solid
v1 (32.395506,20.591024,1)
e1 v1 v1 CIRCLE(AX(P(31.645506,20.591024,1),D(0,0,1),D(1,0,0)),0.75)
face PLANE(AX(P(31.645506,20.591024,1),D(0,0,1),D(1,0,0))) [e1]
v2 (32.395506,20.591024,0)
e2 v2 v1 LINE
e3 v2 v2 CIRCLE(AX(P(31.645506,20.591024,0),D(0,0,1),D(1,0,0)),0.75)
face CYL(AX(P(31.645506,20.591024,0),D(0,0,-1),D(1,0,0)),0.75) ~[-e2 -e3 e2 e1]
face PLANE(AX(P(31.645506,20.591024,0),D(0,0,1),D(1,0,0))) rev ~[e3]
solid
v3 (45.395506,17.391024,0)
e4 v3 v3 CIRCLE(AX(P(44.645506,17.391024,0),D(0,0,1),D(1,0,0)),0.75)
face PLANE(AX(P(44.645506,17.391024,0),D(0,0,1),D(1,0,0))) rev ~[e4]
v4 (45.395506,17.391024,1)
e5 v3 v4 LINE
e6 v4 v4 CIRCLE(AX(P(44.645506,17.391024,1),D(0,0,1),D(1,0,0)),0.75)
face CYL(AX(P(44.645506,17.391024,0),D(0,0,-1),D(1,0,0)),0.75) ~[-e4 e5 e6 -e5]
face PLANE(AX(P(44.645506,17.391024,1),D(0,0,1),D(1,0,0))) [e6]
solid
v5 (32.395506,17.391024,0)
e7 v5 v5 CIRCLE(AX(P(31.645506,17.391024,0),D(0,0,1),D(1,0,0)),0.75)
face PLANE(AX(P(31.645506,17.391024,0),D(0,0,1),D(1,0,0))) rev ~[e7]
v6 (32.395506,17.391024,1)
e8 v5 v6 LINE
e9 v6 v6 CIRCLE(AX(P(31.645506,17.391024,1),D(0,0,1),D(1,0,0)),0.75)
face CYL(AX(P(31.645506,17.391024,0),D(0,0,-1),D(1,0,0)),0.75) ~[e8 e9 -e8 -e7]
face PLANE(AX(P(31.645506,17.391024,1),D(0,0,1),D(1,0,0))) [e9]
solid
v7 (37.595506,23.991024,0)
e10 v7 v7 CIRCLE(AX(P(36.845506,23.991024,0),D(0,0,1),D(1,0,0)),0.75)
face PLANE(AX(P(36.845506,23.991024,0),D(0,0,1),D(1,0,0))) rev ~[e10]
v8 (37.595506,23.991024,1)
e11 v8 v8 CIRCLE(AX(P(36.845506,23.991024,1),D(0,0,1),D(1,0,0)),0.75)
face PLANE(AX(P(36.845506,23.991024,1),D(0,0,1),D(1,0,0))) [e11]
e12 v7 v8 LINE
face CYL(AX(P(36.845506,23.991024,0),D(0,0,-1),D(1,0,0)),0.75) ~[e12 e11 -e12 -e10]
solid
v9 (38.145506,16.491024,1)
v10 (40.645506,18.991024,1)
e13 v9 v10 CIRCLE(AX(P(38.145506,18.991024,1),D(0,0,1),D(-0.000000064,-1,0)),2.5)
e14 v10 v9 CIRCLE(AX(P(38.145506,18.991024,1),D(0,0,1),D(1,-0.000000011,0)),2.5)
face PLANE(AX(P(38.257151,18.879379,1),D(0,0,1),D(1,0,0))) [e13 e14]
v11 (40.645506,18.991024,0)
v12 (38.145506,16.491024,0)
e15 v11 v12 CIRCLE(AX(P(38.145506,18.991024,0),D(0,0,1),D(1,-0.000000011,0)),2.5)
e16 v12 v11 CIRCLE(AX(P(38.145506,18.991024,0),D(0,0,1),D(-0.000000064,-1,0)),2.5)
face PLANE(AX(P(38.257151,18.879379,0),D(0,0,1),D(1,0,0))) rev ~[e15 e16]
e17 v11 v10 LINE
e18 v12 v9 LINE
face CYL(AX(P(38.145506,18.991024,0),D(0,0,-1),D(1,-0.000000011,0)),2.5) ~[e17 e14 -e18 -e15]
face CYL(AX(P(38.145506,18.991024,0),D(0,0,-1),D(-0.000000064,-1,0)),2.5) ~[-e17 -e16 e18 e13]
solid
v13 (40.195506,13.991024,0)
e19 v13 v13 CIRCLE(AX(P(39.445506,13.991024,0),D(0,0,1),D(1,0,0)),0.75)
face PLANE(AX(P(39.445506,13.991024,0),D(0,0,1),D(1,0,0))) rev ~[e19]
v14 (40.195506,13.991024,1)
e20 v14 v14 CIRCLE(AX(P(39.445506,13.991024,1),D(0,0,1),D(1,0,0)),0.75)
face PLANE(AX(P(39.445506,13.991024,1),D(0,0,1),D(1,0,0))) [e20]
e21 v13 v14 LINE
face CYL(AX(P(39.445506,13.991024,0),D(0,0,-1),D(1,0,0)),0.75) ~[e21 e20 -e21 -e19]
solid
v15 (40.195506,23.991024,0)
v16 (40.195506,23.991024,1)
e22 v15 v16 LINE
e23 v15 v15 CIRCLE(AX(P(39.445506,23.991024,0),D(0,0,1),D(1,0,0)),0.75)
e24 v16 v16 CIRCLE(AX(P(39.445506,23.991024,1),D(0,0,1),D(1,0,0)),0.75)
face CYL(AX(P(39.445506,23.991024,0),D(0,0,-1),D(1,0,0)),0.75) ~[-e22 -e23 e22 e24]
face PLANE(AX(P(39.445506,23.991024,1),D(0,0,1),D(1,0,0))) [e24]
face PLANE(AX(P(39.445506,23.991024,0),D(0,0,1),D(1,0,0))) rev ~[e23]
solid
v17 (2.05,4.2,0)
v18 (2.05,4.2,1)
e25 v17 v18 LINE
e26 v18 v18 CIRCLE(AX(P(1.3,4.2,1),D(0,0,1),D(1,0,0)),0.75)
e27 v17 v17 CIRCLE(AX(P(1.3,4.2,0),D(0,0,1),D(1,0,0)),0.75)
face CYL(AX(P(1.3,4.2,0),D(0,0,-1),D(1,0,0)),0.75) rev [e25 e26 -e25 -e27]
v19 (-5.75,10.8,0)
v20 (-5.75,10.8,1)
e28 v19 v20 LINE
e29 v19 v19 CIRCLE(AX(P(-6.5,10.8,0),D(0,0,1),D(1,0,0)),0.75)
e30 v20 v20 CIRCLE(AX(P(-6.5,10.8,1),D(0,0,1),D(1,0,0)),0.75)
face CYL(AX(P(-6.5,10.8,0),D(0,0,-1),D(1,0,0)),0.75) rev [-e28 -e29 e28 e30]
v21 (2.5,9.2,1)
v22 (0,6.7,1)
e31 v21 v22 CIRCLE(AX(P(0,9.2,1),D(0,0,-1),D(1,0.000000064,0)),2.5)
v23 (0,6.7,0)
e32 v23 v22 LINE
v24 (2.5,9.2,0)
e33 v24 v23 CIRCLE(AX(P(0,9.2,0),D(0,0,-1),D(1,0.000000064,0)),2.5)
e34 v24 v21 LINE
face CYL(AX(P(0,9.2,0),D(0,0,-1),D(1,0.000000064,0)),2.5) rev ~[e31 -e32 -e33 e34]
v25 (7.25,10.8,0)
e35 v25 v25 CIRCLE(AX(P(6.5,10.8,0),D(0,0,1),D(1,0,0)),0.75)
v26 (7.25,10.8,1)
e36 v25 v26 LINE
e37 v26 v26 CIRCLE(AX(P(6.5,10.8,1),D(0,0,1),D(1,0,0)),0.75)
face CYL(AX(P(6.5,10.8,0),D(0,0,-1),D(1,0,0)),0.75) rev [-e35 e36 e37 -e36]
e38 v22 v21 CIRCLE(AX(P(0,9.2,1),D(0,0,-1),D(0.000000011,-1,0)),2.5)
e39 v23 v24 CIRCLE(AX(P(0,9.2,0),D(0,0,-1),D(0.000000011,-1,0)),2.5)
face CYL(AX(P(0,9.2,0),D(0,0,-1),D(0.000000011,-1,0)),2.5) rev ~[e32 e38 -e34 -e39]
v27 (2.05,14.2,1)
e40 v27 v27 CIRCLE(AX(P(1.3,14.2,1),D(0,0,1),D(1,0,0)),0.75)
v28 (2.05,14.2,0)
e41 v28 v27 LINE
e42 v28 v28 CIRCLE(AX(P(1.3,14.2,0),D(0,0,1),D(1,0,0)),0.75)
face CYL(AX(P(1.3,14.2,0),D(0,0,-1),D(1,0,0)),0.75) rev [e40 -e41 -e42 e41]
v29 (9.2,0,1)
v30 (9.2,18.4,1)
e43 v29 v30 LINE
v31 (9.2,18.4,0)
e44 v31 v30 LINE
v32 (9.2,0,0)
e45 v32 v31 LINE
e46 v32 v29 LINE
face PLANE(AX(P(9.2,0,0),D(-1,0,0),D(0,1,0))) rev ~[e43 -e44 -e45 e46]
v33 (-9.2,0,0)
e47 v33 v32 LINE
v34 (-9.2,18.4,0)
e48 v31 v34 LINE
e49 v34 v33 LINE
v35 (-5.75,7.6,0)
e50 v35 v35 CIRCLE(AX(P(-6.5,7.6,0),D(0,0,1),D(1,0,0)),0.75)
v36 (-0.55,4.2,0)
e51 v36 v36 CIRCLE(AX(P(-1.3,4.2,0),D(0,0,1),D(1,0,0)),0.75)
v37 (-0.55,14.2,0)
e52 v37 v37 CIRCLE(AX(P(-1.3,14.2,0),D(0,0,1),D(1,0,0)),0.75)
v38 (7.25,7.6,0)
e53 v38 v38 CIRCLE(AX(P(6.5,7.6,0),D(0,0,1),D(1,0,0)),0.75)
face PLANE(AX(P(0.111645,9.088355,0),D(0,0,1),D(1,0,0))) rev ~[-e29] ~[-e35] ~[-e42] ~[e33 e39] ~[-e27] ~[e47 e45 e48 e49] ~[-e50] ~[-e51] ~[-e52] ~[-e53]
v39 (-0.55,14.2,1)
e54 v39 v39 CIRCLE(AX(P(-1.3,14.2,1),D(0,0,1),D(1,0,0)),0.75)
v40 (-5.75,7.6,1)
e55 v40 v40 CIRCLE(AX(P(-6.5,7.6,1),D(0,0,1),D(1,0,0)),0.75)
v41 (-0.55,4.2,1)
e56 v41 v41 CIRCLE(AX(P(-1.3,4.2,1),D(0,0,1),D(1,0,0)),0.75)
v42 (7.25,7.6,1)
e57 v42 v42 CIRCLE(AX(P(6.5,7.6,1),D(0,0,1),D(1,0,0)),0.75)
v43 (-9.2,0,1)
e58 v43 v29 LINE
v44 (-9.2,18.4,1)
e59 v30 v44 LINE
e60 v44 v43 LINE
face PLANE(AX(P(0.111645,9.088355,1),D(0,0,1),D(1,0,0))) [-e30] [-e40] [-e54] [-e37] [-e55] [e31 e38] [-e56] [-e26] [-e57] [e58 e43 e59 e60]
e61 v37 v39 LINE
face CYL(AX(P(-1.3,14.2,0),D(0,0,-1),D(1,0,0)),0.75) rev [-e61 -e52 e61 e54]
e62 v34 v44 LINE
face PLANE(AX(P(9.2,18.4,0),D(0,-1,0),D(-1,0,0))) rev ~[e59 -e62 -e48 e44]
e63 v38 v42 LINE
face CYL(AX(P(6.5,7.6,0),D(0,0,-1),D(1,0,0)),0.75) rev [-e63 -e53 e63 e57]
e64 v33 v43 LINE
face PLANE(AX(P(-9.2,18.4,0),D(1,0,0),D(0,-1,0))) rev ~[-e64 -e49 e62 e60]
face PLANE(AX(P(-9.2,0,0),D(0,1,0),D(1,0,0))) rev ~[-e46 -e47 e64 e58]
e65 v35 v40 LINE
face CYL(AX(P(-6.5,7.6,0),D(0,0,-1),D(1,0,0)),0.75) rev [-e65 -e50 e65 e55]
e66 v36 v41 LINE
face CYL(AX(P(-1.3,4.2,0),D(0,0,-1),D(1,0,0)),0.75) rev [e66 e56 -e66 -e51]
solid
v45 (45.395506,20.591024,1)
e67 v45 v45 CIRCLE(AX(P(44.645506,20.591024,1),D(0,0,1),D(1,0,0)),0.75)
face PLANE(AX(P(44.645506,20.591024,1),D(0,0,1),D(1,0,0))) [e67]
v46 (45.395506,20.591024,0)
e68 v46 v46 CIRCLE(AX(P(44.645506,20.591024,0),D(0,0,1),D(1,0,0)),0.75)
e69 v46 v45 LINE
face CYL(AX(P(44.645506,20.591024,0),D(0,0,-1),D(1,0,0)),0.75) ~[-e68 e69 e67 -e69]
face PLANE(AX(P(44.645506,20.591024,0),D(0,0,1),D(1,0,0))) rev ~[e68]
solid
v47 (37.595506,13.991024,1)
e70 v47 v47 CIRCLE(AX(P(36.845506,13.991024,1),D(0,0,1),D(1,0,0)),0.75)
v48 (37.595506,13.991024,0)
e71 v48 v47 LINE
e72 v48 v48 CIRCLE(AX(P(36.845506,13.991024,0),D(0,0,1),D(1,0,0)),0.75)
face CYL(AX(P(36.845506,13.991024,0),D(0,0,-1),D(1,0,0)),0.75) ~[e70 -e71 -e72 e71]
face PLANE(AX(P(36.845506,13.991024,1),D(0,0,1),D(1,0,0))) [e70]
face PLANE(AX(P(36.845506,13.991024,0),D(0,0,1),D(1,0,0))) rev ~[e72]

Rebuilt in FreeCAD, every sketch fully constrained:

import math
import FreeCAD as App
import Part
import Sketcher
Q = App.Units.Quantity


def add_polygon(sketch, points):
    """Adds a closed chain of lines whose ends are joined by coincident constraints."""
    first, n = sketch.GeometryCount, len(points)
    for a, b in zip(points, points[1:] + points[:1]):
        sketch.addGeometry(Part.LineSegment(App.Vector(*a, 0), App.Vector(*b, 0)), False)
    for i in range(n):
        sketch.addConstraint(Sketcher.Constraint("Coincident", first + i, 2, first + (i + 1) % n, 1))

doc = App.newDocument("Part")
params = doc.addObject("Spreadsheet::Sheet", "Params")
for row, (alias, value) in enumerate([
    ("sketch1_diameter", "1.5 mm"),
    ("sketch1_radius", "2.5 mm"),
    ("sketch1_width", "18.4 mm"),
    ("pad1_length", "1 mm"),
], start=1):
    params.set(f"A{row}", alias)
    params.set(f"B{row}", "=" + value)
    params.setAlias(f"B{row}", alias)

body = doc.addObject("PartDesign::Body", "Body")
body.AllowCompound = True

# Sketch on XY plane
sketch1 = doc.addObject("Sketcher::SketchObject", "Sketch")
body.addObject(sketch1)
sketch1.AttachmentSupport = (doc.XY_Plane, [""])
sketch1.MapMode = "FlatFace"
add_polygon(sketch1, [(-9.2, 0), (9.2, 0), (9.2, 18.4), (-9.2, 18.4)])  # lines 0-3
sketch1.addGeometry(Part.Circle(App.Vector(-1.3, 4.2, 0), App.Vector(0, 0, 1), 0.8), False)  # 4
sketch1.addGeometry(Part.Circle(App.Vector(-6.5, 7.6, 0), App.Vector(0, 0, 1), 0.8), False)  # 5
sketch1.addGeometry(Part.Circle(App.Vector(1.3, 4.2, 0), App.Vector(0, 0, 1), 0.8), False)  # 6
sketch1.addGeometry(Part.Circle(App.Vector(6.5, 7.6, 0), App.Vector(0, 0, 1), 0.8), False)  # 7
sketch1.addGeometry(Part.Circle(App.Vector(-6.5, 10.8, 0), App.Vector(0, 0, 1), 0.8), False)  # 8
sketch1.addGeometry(Part.ArcOfCircle(Part.Circle(App.Vector(0, 9.2, 0), App.Vector(0, 0, 1), 2.5), math.radians(-90), math.radians(0)), False)  # 9
sketch1.addGeometry(Part.ArcOfCircle(Part.Circle(App.Vector(0, 9.2, 0), App.Vector(0, 0, 1), 2.5), math.radians(0), math.radians(270)), False)  # 10
sketch1.addGeometry(Part.Circle(App.Vector(-1.3, 14.2, 0), App.Vector(0, 0, 1), 0.8), False)  # 11
sketch1.addGeometry(Part.Circle(App.Vector(6.5, 10.8, 0), App.Vector(0, 0, 1), 0.8), False)  # 12
sketch1.addGeometry(Part.Circle(App.Vector(1.3, 14.2, 0), App.Vector(0, 0, 1), 0.8), False)  # 13
sketch1.addGeometry(Part.Circle(App.Vector(36.8, 14, 0), App.Vector(0, 0, 1), 0.8), False)  # 14
sketch1.addGeometry(Part.Circle(App.Vector(36.8, 24, 0), App.Vector(0, 0, 1), 0.8), False)  # 15
sketch1.addGeometry(Part.Circle(App.Vector(39.4, 24, 0), App.Vector(0, 0, 1), 0.8), False)  # 16
sketch1.addGeometry(Part.Circle(App.Vector(39.4, 14, 0), App.Vector(0, 0, 1), 0.8), False)  # 17
sketch1.addGeometry(Part.Circle(App.Vector(44.6, 17.4, 0), App.Vector(0, 0, 1), 0.8), False)  # 18
sketch1.addGeometry(Part.Circle(App.Vector(44.6, 20.6, 0), App.Vector(0, 0, 1), 0.8), False)  # 19
sketch1.addGeometry(Part.Circle(App.Vector(31.6, 20.6, 0), App.Vector(0, 0, 1), 0.8), False)  # 20
sketch1.addGeometry(Part.Circle(App.Vector(31.6, 17.4, 0), App.Vector(0, 0, 1), 0.8), False)  # 21
sketch1.addGeometry(Part.ArcOfCircle(Part.Circle(App.Vector(38.1, 19, 0), App.Vector(0, 0, 1), 2.5), math.radians(-90), math.radians(0)), False)  # 22
sketch1.addGeometry(Part.ArcOfCircle(Part.Circle(App.Vector(38.1, 19, 0), App.Vector(0, 0, 1), 2.5), math.radians(0), math.radians(270)), False)  # 23
sketch1.addConstraint(Sketcher.Constraint("Tangent", 9, 1, 10, 2))
sketch1.addConstraint(Sketcher.Constraint("Coincident", 10, 1, 9, 2))
sketch1.addConstraint(Sketcher.Constraint("Tangent", 22, 1, 23, 2))
sketch1.addConstraint(Sketcher.Constraint("Coincident", 23, 1, 22, 2))
sketch1.addConstraint(Sketcher.Constraint("Horizontal", 0))
sketch1.addConstraint(Sketcher.Constraint("Vertical", 1))
sketch1.addConstraint(Sketcher.Constraint("Horizontal", 2))
sketch1.addConstraint(Sketcher.Constraint("Vertical", 3))
sketch1.addConstraint(Sketcher.Constraint("Equal", 4, 5))
sketch1.addConstraint(Sketcher.Constraint("Equal", 5, 6))
sketch1.addConstraint(Sketcher.Constraint("Equal", 6, 7))
sketch1.addConstraint(Sketcher.Constraint("Equal", 7, 8))
sketch1.addConstraint(Sketcher.Constraint("Equal", 8, 11))
sketch1.addConstraint(Sketcher.Constraint("Equal", 11, 12))
sketch1.addConstraint(Sketcher.Constraint("Equal", 12, 13))
sketch1.addConstraint(Sketcher.Constraint("Equal", 13, 14))
sketch1.addConstraint(Sketcher.Constraint("Equal", 14, 15))
sketch1.addConstraint(Sketcher.Constraint("Equal", 15, 16))
sketch1.addConstraint(Sketcher.Constraint("Equal", 16, 17))
sketch1.addConstraint(Sketcher.Constraint("Equal", 17, 18))
sketch1.addConstraint(Sketcher.Constraint("Equal", 18, 19))
sketch1.addConstraint(Sketcher.Constraint("Equal", 19, 20))
sketch1.addConstraint(Sketcher.Constraint("Equal", 20, 21))
sketch1.addConstraint(Sketcher.Constraint("Equal", 10, 22))
sketch1.addConstraint(Sketcher.Constraint("Symmetric", 0, 2, 3, 2, -1, 1))
sketch1.addConstraint(Sketcher.Constraint("Symmetric", 4, 3, 6, 3, -2))
sketch1.addConstraint(Sketcher.Constraint("Symmetric", 5, 3, 7, 3, -2))
sketch1.addConstraint(Sketcher.Constraint("Symmetric", 8, 3, 12, 3, -2))
sketch1.addConstraint(Sketcher.Constraint("Symmetric", 11, 3, 13, 3, -2))
sketch1.addConstraint(Sketcher.Constraint("PointOnObject", 9, 3, -2))
sketch1.addConstraint(Sketcher.Constraint("PointOnObject", 9, 1, -2))
sketch1.addConstraint(Sketcher.Constraint("Horizontal", 15, 3, 16, 3))
sketch1.addConstraint(Sketcher.Constraint("Horizontal", 14, 3, 17, 3))
sketch1.addConstraint(Sketcher.Constraint("Horizontal", 19, 3, 20, 3))
sketch1.addConstraint(Sketcher.Constraint("Horizontal", 18, 3, 21, 3))
sketch1.addConstraint(Sketcher.Constraint("Horizontal", 9, 3, 10, 1))
sketch1.addConstraint(Sketcher.Constraint("Horizontal", 22, 3, 23, 1))
sketch1.addConstraint(Sketcher.Constraint("Vertical", 5, 3, 8, 3))
sketch1.addConstraint(Sketcher.Constraint("Vertical", 4, 3, 11, 3))
sketch1.addConstraint(Sketcher.Constraint("Vertical", 14, 3, 15, 3))
sketch1.addConstraint(Sketcher.Constraint("Vertical", 16, 3, 17, 3))
sketch1.addConstraint(Sketcher.Constraint("Vertical", 18, 3, 19, 3))
sketch1.addConstraint(Sketcher.Constraint("Vertical", 20, 3, 21, 3))
sketch1.addConstraint(Sketcher.Constraint("Vertical", 23, 3, 22, 1))
sketch1.addConstraint(Sketcher.Constraint("Equal", 2, 1))
sketch1.addConstraint(Sketcher.Constraint("Diameter", 4, Q("1.5 mm")))
sketch1.addConstraint(Sketcher.Constraint("Radius", 9, Q("2.5 mm")))
sketch1.addConstraint(Sketcher.Constraint("DistanceX", 0, 1, 0, 2, Q("18.4 mm")))
sketch1.addConstraint(Sketcher.Constraint("DistanceX", 5, 3, 7, 3, Q("13 mm")))
sketch1.addConstraint(Sketcher.Constraint("DistanceY", 6, 3, 9, 3, Q("5 mm")))
sketch1.addConstraint(Sketcher.Constraint("DistanceY", 10, 3, 11, 3, Q("5 mm")))
sketch1.addConstraint(Sketcher.Constraint("DistanceY", 14, 3, 15, 3, Q("10 mm")))
sketch1.addConstraint(Sketcher.Constraint("DistanceX", 20, 3, 19, 3, Q("13 mm")))
sketch1.addConstraint(Sketcher.Constraint("DistanceY", 17, 3, 22, 3, Q("5 mm")))
sketch1.addConstraint(Sketcher.Constraint("DistanceX", 23, 1, 18, 3, Q("4 mm")))
sketch1.addConstraint(Sketcher.Constraint("DistanceX", 4, 3, -1, 1, Q("1.3 mm")))
sketch1.addConstraint(Sketcher.Constraint("DistanceY", -1, 1, 4, 3, Q("4.2 mm")))
sketch1.addConstraint(Sketcher.Constraint("DistanceY", -1, 1, 5, 3, Q("7.6 mm")))
sketch1.addConstraint(Sketcher.Constraint("DistanceY", -1, 1, 8, 3, Q("10.8 mm")))
sketch1.addConstraint(Sketcher.Constraint("DistanceX", 15, 3, 16, 3, Q("2.6 mm")))
sketch1.addConstraint(Sketcher.Constraint("DistanceX", 17, 3, 18, 3, Q("5.2 mm")))
sketch1.addConstraint(Sketcher.Constraint("DistanceY", 17, 3, 18, 3, Q("3.4 mm")))
sketch1.addConstraint(Sketcher.Constraint("DistanceY", 18, 3, 19, 3, Q("3.2 mm")))
sketch1.addConstraint(Sketcher.Constraint("DistanceX", -1, 1, 14, 3, Q("36.845506 mm")))
sketch1.addConstraint(Sketcher.Constraint("DistanceY", -1, 1, 14, 3, Q("13.991024 mm")))
sketch1.setExpression("Constraints[49]", "Params.sketch1_diameter")
sketch1.setExpression("Constraints[50]", "Params.sketch1_radius")
sketch1.setExpression("Constraints[51]", "Params.sketch1_width")
pad1 = doc.addObject("PartDesign::Pad", "Pad")
body.addObject(pad1)
pad1.Profile = sketch1
pad1.setExpression("Length", "Params.pad1_length")

doc.recompute()
